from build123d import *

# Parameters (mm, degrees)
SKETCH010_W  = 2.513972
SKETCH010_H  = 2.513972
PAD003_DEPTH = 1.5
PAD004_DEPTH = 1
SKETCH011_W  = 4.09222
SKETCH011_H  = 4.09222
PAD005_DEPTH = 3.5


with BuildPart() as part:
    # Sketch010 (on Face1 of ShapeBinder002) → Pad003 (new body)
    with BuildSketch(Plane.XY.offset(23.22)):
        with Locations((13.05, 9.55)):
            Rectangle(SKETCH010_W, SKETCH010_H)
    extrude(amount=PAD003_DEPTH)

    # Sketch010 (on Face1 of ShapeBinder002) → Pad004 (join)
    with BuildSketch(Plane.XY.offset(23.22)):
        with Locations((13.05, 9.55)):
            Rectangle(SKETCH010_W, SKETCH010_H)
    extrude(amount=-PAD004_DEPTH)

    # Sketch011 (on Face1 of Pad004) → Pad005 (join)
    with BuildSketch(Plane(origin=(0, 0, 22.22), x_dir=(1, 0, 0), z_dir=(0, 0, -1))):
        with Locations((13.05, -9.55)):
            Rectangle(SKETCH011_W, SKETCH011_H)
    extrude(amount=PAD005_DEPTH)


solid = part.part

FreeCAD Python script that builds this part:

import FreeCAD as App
import Part
import Sketcher
Q = App.Units.Quantity


def add_polygon(sketch, points):
    """Adds a closed chain of lines whose ends are joined by coincident constraints."""
    first, n = sketch.GeometryCount, len(points)
    for a, b in zip(points, points[1:] + points[:1]):
        sketch.addGeometry(Part.LineSegment(App.Vector(*a, 0), App.Vector(*b, 0)), False)
    for i in range(n):
        sketch.addConstraint(Sketcher.Constraint("Coincident", first + i, 2, first + (i + 1) % n, 1))

doc = App.newDocument("Part")
body = doc.addObject("PartDesign::Body", "Body")

sketch1 = body.newObject("Sketcher::SketchObject", "Sketch")
sketch1.AttachmentSupport = (doc.getObject("XY_Plane"), [""])
sketch1.MapMode = "FlatFace"
sketch1.AttachmentOffset = App.Placement(App.Vector(0, 0, 23.22), App.Rotation())
add_polygon(sketch1, [(11.8, 10.8), (11.8, 8.3), (14.3, 8.3), (14.3, 10.8)])
sketch1.addConstraint([
    Sketcher.Constraint("Vertical", 0),
    Sketcher.Constraint("Horizontal", 1),
    Sketcher.Constraint("Vertical", 2),
    Sketcher.Constraint("Horizontal", 3),
    Sketcher.Constraint("Equal", 3, 0),
    Sketcher.Constraint("DistanceX", 1, 1, 1, 2, Q("2.513972 mm")),
    Sketcher.Constraint("DistanceX", -1, 1, 0, 2, Q("11.793014 mm")),
    Sketcher.Constraint("DistanceY", -1, 1, 0, 2, Q("8.293014 mm")),
])
pad1 = body.newObject("PartDesign::Pad", "Pad")
pad1.Profile = sketch1
pad1.Length = 1.5

sketch2 = body.newObject("Sketcher::SketchObject", "Sketch001")
sketch2.AttachmentSupport = (doc.getObject("XY_Plane"), [""])
sketch2.MapMode = "FlatFace"
sketch2.AttachmentOffset = App.Placement(App.Vector(0, 0, 23.22), App.Rotation())
add_polygon(sketch2, [(11.8, 10.8), (11.8, 8.3), (14.3, 8.3), (14.3, 10.8)])
sketch2.addConstraint([
    Sketcher.Constraint("Vertical", 0),
    Sketcher.Constraint("Horizontal", 1),
    Sketcher.Constraint("Vertical", 2),
    Sketcher.Constraint("Horizontal", 3),
    Sketcher.Constraint("Equal", 3, 0),
    Sketcher.Constraint("DistanceX", 1, 1, 1, 2, Q("2.513972 mm")),
    Sketcher.Constraint("DistanceX", -1, 1, 0, 2, Q("11.793014 mm")),
    Sketcher.Constraint("DistanceY", -1, 1, 0, 2, Q("8.293014 mm")),
])
pad2 = body.newObject("PartDesign::Pad", "Pad001")
pad2.Profile = sketch2
pad2.Length = 1
pad2.Reversed = True

sketch3 = body.newObject("Sketcher::SketchObject", "Sketch002")
sketch3.AttachmentSupport = (doc.getObject("XY_Plane"), [""])
sketch3.MapMode = "FlatFace"
sketch3.AttachmentOffset = App.Placement(App.Vector(0, 0, 22.22), App.Rotation())
add_polygon(sketch3, [(11, 7.5), (11, 11.6), (15.1, 11.6), (15.1, 7.5)])
sketch3.addConstraint([
    Sketcher.Constraint("Vertical", 0),
    Sketcher.Constraint("Horizontal", 1),
    Sketcher.Constraint("Vertical", 2),
    Sketcher.Constraint("Horizontal", 3),
    Sketcher.Constraint("Equal", 3, 0),
    Sketcher.Constraint("DistanceX", 1, 1, 1, 2, Q("4.09222 mm")),
    Sketcher.Constraint("DistanceX", -1, 1, 0, 2, Q("11.00389 mm")),
    Sketcher.Constraint("DistanceY", -1, 1, 0, 2, Q("11.59611 mm")),
])
pad3 = body.newObject("PartDesign::Pad", "Pad002")
pad3.Profile = sketch3
pad3.Length = 3.5
pad3.Reversed = True

doc.recompute()
